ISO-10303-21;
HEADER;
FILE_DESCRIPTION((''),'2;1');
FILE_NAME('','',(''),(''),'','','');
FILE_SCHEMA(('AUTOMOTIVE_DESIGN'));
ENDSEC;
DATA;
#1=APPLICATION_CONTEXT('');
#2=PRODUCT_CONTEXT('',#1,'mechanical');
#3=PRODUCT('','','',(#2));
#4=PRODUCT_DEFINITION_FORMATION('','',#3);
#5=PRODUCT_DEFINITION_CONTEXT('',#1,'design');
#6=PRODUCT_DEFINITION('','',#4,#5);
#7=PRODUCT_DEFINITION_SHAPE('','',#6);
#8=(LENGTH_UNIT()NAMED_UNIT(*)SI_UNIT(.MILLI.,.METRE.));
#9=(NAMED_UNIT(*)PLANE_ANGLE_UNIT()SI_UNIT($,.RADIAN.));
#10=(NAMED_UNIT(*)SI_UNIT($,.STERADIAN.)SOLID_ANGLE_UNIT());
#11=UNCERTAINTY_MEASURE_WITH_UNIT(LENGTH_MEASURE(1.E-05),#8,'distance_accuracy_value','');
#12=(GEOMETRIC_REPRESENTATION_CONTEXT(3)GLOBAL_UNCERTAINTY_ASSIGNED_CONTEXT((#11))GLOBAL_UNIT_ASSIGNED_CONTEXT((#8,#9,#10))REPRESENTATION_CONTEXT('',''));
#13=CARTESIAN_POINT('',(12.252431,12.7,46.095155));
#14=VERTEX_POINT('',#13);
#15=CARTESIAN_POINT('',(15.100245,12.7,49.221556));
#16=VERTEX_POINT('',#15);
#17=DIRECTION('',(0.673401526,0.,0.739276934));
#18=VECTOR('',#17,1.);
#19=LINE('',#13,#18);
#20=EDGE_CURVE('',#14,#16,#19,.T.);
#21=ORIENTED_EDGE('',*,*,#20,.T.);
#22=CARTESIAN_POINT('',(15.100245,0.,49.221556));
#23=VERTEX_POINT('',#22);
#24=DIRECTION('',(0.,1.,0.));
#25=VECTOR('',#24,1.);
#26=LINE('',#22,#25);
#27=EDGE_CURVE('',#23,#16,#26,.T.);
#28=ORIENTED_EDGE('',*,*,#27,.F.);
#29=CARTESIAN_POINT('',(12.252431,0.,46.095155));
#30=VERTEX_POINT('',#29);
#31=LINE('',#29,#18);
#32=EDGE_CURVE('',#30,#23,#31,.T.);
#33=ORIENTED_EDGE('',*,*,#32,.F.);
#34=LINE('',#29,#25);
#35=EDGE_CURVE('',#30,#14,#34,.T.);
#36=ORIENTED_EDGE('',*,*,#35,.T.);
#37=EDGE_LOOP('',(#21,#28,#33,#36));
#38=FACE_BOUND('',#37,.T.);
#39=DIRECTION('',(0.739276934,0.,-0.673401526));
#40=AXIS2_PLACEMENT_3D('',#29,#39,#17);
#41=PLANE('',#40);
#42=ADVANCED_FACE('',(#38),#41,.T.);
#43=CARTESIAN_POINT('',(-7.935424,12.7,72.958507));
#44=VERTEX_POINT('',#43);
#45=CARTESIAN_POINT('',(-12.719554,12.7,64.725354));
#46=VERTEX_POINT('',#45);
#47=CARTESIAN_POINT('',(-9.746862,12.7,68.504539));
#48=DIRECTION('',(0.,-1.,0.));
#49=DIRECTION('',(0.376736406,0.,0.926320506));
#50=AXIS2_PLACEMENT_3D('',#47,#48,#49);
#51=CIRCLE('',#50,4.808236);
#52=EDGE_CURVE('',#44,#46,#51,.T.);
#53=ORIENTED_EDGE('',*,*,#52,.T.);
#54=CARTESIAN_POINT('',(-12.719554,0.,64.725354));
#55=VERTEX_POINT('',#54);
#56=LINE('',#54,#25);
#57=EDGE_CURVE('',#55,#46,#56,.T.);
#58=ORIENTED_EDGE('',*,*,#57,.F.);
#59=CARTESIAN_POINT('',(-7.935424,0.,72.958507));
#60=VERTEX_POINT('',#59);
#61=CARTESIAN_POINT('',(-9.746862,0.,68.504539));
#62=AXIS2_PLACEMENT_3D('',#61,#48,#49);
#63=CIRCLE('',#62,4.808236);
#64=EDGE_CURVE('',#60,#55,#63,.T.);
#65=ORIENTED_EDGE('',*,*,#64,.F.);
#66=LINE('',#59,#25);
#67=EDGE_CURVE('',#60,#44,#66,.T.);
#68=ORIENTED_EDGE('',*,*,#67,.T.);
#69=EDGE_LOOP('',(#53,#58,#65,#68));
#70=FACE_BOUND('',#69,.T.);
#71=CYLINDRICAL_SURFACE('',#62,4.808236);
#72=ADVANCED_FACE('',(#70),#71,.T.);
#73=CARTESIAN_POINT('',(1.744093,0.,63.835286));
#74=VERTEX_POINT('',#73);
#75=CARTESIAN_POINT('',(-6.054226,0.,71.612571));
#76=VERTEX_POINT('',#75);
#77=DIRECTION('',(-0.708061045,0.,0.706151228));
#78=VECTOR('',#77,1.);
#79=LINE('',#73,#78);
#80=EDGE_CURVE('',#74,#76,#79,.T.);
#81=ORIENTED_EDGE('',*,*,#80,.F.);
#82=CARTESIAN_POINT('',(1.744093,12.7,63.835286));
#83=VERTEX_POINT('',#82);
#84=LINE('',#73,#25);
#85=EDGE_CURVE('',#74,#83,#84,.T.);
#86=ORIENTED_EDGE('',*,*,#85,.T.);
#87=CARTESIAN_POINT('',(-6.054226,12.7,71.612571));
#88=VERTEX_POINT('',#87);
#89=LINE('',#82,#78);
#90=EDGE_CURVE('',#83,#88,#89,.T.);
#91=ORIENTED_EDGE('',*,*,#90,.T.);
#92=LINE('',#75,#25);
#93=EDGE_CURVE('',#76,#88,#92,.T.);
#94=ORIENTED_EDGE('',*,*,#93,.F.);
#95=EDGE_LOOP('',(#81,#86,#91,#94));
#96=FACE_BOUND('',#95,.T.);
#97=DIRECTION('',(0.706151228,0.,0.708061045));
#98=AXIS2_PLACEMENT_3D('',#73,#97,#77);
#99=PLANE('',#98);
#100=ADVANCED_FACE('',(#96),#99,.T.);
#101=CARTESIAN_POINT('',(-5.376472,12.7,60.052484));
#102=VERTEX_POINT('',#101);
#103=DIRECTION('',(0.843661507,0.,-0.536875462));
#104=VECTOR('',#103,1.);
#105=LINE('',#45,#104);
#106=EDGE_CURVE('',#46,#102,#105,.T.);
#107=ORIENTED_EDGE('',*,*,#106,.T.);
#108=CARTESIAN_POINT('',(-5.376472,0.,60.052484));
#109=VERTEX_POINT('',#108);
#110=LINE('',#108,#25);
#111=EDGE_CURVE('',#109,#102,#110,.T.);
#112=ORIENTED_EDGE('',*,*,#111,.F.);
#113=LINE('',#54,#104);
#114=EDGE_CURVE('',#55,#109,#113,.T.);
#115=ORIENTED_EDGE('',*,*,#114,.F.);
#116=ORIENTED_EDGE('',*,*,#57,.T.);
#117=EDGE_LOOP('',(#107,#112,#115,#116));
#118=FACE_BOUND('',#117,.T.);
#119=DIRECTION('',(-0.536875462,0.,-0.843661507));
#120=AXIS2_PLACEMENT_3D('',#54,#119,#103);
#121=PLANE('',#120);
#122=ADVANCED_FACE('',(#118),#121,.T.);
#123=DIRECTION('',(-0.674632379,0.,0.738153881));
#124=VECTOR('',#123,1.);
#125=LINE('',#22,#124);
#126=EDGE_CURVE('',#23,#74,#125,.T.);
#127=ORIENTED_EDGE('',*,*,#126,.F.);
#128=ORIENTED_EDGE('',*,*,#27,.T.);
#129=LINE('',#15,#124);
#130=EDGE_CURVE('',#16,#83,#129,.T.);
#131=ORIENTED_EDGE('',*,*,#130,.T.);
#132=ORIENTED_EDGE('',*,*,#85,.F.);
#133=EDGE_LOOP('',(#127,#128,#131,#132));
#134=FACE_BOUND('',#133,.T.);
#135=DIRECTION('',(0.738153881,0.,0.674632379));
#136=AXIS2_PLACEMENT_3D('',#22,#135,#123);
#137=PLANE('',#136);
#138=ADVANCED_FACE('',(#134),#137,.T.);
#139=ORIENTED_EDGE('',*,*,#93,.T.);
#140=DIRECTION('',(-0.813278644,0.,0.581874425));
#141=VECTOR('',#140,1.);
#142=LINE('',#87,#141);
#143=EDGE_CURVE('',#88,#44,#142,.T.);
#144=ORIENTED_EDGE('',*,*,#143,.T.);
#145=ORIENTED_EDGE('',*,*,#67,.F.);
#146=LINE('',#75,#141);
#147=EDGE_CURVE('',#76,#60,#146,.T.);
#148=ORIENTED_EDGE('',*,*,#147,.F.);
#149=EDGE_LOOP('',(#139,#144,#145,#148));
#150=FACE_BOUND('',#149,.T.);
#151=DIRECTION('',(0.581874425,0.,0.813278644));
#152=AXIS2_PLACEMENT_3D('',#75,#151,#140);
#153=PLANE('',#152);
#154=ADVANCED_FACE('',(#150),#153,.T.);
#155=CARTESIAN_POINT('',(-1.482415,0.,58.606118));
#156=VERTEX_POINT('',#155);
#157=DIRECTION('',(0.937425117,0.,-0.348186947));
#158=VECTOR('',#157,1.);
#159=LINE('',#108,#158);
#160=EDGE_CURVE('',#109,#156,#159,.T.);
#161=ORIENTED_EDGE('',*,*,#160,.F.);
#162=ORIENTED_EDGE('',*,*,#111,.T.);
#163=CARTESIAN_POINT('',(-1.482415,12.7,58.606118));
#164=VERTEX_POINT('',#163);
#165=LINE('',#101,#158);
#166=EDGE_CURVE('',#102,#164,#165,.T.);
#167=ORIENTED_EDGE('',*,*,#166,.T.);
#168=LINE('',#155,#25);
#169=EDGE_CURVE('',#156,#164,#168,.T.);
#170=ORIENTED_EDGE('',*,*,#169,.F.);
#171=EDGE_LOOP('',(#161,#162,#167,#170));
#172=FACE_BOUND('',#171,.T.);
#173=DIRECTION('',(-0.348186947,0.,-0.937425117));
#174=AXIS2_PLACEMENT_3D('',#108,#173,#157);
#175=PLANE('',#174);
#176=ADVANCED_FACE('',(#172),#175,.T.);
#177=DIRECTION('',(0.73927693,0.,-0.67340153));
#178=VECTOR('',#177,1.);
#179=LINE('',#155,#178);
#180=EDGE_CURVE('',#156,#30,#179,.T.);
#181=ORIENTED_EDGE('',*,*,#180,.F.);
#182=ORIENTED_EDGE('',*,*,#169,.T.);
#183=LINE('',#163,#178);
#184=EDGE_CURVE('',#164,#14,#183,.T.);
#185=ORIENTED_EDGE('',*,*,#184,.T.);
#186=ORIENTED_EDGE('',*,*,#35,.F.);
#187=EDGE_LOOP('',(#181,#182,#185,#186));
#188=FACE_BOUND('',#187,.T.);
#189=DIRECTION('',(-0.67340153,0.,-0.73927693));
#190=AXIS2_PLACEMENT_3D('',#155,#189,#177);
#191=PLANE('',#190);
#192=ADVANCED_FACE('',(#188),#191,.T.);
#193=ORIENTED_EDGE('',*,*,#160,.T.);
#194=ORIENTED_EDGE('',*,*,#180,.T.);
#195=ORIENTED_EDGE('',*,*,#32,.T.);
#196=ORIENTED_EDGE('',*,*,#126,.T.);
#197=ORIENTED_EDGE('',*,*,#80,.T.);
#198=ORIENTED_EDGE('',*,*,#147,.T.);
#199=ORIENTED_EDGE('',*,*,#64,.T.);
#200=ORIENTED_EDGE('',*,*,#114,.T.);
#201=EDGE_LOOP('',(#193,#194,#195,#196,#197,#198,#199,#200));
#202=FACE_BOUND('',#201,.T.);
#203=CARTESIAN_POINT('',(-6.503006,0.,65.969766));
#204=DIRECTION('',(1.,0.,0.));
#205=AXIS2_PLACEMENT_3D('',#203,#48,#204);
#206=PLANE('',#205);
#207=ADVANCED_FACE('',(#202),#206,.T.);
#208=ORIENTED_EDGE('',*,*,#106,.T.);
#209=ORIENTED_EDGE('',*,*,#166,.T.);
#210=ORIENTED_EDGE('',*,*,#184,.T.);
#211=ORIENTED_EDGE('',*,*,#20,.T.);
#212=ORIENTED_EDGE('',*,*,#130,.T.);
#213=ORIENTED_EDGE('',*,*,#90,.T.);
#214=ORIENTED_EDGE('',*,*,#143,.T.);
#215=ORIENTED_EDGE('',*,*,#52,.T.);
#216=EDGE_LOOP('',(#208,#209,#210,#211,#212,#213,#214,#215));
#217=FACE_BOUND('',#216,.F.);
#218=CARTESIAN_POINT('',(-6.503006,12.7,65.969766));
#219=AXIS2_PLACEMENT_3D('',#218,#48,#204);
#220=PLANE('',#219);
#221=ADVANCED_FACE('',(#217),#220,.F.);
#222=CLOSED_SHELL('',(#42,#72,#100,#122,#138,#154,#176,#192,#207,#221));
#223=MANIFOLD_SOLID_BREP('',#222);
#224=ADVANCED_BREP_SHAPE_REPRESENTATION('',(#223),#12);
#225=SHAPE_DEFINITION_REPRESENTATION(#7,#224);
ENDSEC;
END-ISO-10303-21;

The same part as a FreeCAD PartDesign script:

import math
import FreeCAD as App
import Part
import Sketcher
from FreeCAD import Vector

doc = App.newDocument("Part")
params = doc.addObject("Spreadsheet::Sheet", "Params")
for row, (alias, value) in enumerate([
    ("pad1_length", "0.5 in"),
], start=1):
    params.set(f"A{row}", alias)
    params.set(f"B{row}", "=" + value)
    params.setAlias(f"B{row}", alias)

body = doc.addObject("PartDesign::Body", "Body")

sketch1 = body.newObject("Sketcher::SketchObject", "Sketch")
sketch1.AttachmentSupport = (doc.getObject("XZ_Plane"), [""])
sketch1.MapMode = "FlatFace"
sketch1.addGeometry([
    Part.LineSegment(Vector(-6.1, 71.6, 0), Vector(-7.9, 73, 0)),
    Part.ArcOfCircle(Part.Circle(Vector(-9.7, 68.5, 0), Vector(0, 0, 1), 4.8), math.radians(68), math.radians(232)),
    Part.LineSegment(Vector(-12.7, 64.7, 0), Vector(-5.4, 60.1, 0)),
    Part.LineSegment(Vector(-5.4, 60.1, 0), Vector(-1.5, 58.6, 0)),
    Part.LineSegment(Vector(-1.5, 58.6, 0), Vector(12.3, 46.1, 0)),
    Part.LineSegment(Vector(12.3, 46.1, 0), Vector(15.1, 49.2, 0)),
    Part.LineSegment(Vector(15.1, 49.2, 0), Vector(1.7, 63.8, 0)),
    Part.LineSegment(Vector(1.7, 63.8, 0), Vector(-6.1, 71.6, 0)),
], False)
sketch1.addConstraint([
    Sketcher.Constraint("Coincident", 0, 2, 1, 1),
    Sketcher.Constraint("Coincident", 1, 2, 2, 1),
    Sketcher.Constraint("Coincident", 2, 2, 3, 1),
    Sketcher.Constraint("Coincident", 3, 2, 4, 1),
    Sketcher.Constraint("Coincident", 4, 2, 5, 1),
    Sketcher.Constraint("Coincident", 5, 2, 6, 1),
    Sketcher.Constraint("Coincident", 6, 2, 7, 1),
    Sketcher.Constraint("Coincident", 7, 2, 0, 1),
    Sketcher.Constraint("Perpendicular", 4, 5),
    Sketcher.Constraint("Radius", 1, 4.808236),
    Sketcher.Constraint("Distance", 5, 4.228998),
    Sketcher.Constraint("DistanceY", 4, 2, 1, 2, 18.630199),
    Sketcher.Constraint("DistanceY", 4, 2, 5, 2, 3.126401),
    Sketcher.Constraint("DistanceX", 1, 2, 5, 2, 27.819799),
    Sketcher.Constraint("DistanceX", 0, 2, 7, 2, 1.881198),
    Sketcher.Constraint("DistanceX", 1, 3, -1, 1, 9.746862),
    Sketcher.Constraint("DistanceY", -1, 1, 1, 3, 68.504539),
    Sketcher.Constraint("DistanceX", 2, 2, -1, 1, 5.376472),
    Sketcher.Constraint("DistanceY", -1, 1, 3, 2, 58.606118),
    Sketcher.Constraint("DistanceX", -1, 1, 4, 2, 12.252431),
    Sketcher.Constraint("DistanceY", -1, 1, 7, 2, 71.612571),
    Sketcher.Constraint("DistanceY", 1, 3, 0, 2, 4.453968),
    Sketcher.Constraint("DistanceY", 2, 2, 1, 2, 4.67287),
    Sketcher.Constraint("DistanceY", 3, 2, 6, 2, 5.229168),
    Sketcher.Constraint("DistanceX", 7, 2, 6, 2, 7.798319),
])
pad1 = body.newObject("PartDesign::Pad", "Pad")
pad1.Profile = sketch1
pad1.setExpression("Length", "Params.pad1_length")
pad1.Reversed = True

doc.recompute()
